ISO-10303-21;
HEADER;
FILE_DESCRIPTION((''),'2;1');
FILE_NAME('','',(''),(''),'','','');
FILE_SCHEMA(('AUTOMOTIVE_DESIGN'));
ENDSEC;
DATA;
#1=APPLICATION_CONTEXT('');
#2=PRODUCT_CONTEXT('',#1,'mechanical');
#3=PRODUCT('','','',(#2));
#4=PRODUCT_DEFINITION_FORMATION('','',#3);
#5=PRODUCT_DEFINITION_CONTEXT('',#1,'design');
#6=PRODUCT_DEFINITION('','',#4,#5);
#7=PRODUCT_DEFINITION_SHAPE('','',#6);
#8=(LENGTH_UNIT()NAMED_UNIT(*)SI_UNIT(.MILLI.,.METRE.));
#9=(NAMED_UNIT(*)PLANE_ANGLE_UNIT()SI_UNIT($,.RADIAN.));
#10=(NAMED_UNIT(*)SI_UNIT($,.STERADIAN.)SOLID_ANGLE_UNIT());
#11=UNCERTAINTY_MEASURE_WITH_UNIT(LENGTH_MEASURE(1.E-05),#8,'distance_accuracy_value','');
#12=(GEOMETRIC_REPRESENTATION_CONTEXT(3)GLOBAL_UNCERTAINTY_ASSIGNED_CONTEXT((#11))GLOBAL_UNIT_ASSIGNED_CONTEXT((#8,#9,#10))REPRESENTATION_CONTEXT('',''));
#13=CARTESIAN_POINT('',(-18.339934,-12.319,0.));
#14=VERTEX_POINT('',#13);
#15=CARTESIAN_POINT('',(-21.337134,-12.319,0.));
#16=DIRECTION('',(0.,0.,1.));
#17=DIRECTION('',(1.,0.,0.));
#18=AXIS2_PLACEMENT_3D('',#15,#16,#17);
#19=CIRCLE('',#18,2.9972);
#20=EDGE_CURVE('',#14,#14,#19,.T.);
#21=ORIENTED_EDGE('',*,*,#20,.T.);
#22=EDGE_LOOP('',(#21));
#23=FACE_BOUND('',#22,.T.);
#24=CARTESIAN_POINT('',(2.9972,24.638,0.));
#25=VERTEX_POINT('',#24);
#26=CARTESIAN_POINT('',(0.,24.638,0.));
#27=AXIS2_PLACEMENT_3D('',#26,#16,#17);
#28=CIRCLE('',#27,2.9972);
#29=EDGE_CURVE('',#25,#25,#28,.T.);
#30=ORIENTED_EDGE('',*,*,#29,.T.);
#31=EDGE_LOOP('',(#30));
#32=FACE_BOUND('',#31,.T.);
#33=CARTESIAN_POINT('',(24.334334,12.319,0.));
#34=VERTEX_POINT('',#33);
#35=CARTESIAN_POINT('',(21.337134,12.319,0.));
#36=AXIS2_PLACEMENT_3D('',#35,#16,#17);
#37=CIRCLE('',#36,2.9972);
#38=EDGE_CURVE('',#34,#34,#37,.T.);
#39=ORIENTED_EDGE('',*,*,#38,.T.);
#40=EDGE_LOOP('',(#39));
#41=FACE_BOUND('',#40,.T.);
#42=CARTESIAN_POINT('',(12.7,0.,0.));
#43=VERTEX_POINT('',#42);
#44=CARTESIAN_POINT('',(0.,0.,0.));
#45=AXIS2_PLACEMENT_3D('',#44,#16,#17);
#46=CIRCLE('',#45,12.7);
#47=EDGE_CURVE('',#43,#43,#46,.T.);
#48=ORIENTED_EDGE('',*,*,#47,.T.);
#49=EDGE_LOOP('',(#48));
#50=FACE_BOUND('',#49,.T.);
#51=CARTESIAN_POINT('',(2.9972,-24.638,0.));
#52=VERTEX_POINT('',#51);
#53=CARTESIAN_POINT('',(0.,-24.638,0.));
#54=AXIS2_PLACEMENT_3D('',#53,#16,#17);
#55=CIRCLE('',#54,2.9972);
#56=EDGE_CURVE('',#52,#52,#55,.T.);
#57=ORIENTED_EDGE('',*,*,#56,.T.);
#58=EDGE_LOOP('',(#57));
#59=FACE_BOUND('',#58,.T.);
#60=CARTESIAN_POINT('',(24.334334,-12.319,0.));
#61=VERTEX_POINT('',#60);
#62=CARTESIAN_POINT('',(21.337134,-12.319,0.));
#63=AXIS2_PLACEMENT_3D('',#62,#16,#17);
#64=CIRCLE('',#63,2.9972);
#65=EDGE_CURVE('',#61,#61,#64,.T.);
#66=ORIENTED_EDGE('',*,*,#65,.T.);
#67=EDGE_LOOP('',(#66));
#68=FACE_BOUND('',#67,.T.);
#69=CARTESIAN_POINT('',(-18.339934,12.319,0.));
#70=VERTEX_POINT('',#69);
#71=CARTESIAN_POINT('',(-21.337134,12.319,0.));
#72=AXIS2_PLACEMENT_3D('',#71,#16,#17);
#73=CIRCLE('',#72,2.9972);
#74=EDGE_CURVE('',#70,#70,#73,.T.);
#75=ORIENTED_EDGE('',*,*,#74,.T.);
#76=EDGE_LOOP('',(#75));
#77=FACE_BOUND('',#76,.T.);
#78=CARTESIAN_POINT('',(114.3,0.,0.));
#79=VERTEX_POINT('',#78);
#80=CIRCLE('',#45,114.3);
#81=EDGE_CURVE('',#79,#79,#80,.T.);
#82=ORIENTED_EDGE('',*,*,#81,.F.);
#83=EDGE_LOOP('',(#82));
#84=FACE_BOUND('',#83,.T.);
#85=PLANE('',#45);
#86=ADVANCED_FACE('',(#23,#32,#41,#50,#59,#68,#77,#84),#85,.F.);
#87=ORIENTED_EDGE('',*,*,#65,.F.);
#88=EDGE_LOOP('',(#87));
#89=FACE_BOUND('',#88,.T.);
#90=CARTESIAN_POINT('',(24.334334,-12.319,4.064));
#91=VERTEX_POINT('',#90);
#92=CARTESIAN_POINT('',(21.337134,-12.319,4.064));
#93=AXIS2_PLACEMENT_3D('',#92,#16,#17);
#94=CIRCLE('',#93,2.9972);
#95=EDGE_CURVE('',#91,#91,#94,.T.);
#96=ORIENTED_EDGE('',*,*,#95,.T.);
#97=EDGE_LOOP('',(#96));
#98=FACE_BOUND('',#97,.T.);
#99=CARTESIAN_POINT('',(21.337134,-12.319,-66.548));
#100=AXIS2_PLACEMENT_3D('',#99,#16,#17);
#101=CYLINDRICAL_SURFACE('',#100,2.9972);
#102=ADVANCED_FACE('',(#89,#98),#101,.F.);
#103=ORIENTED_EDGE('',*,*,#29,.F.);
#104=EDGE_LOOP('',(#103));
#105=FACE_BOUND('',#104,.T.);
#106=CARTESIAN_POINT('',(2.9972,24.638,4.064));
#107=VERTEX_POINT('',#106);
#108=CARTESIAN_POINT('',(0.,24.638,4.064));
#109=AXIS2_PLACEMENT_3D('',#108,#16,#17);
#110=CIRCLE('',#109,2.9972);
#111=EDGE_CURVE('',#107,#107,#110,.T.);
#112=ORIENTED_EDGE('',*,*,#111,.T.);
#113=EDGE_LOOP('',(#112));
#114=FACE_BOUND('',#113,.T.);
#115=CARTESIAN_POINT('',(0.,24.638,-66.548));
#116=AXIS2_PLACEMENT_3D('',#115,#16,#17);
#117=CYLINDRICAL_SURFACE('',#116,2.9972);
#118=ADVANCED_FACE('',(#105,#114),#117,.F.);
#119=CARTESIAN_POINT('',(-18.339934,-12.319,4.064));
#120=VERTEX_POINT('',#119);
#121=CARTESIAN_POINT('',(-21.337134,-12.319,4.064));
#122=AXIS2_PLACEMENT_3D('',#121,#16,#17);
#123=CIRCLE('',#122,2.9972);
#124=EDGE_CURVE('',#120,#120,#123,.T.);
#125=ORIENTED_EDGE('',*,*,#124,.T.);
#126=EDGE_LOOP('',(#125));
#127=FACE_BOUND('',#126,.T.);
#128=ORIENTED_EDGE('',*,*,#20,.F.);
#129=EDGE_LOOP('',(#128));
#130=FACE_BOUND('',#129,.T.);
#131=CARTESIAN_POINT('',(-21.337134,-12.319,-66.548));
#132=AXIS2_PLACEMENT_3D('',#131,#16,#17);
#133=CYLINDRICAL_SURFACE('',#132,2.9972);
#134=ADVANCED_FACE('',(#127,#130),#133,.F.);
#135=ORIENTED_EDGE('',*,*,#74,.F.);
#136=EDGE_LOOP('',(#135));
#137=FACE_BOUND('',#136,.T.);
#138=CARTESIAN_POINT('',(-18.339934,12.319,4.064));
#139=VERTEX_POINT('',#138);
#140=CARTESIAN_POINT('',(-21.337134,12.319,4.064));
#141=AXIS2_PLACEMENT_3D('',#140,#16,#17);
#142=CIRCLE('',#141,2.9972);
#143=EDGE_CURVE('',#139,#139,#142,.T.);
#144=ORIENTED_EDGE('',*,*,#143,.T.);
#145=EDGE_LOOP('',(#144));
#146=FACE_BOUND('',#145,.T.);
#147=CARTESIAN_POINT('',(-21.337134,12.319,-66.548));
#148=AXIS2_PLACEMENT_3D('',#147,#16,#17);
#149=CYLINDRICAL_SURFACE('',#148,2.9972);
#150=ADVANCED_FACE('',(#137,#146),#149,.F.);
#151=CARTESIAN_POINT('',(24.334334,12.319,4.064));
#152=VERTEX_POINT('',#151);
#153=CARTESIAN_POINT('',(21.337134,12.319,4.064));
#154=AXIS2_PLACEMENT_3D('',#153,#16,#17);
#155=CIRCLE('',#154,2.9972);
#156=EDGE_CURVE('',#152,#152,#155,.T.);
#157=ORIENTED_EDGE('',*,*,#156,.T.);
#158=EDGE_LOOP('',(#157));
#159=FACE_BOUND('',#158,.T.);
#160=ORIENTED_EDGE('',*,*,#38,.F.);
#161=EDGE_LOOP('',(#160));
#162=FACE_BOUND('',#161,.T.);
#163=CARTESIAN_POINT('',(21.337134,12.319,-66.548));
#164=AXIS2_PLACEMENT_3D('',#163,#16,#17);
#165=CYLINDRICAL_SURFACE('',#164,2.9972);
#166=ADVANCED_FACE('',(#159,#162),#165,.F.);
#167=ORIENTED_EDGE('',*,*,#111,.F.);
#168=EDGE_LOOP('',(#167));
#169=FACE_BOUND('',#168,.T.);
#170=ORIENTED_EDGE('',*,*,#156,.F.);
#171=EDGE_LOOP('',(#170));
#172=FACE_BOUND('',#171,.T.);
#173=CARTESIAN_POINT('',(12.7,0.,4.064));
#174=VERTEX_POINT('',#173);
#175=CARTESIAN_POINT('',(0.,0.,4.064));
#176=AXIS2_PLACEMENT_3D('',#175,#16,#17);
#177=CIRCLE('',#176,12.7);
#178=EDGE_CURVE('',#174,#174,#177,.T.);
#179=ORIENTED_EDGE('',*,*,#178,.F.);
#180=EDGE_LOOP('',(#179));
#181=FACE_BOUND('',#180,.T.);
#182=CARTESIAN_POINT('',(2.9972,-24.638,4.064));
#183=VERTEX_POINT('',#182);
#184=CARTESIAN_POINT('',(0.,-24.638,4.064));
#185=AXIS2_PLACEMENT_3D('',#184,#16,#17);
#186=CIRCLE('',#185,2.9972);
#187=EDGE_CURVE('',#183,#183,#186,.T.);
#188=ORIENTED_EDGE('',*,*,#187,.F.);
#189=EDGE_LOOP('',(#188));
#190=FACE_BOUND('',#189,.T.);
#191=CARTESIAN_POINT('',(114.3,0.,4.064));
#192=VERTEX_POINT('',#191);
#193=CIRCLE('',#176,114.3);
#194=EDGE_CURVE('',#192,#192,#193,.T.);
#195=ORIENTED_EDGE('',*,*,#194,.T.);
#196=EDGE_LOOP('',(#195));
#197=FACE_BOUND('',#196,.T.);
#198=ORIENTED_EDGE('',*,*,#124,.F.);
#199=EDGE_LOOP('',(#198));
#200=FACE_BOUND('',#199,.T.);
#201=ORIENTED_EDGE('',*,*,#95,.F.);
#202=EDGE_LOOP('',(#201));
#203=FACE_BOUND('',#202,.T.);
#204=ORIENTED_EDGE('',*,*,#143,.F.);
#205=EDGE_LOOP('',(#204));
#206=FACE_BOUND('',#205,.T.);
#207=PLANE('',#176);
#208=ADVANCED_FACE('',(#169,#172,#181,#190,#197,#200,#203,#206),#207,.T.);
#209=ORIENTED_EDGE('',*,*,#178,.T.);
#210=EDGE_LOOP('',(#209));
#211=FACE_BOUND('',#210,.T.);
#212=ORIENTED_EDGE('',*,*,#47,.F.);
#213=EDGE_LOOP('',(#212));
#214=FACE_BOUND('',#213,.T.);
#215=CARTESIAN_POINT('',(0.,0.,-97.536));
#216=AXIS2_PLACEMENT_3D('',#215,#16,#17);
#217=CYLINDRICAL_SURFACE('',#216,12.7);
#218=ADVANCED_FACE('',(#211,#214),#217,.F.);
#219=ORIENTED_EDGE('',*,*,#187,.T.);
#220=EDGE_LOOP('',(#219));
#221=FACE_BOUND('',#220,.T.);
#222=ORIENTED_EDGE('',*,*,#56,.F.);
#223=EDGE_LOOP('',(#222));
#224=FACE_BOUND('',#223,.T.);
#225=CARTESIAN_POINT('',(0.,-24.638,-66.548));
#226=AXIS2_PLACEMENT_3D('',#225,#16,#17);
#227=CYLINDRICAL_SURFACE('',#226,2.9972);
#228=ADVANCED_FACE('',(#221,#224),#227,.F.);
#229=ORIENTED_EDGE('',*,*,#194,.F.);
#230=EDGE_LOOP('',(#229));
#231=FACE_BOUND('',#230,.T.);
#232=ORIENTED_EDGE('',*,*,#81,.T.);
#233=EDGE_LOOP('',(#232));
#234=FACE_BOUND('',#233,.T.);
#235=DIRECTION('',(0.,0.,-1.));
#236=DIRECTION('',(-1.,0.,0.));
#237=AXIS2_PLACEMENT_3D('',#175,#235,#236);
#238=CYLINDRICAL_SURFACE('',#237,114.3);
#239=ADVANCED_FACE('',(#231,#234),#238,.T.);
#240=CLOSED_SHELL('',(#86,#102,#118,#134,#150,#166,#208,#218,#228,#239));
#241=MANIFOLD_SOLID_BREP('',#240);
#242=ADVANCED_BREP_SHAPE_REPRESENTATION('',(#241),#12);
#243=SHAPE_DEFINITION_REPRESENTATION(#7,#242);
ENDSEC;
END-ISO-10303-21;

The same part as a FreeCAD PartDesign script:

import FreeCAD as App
import Part
import Sketcher
Q = App.Units.Quantity

doc = App.newDocument("Part")
body = doc.addObject("PartDesign::Body", "Body")

# Sketch on XY plane
sketch1 = body.newObject("Sketcher::SketchObject", "Sketch")
sketch1.AttachmentSupport = (doc.getObject("XY_Plane"), [""])
sketch1.MapMode = "FlatFace"
sketch1.addGeometry(Part.Circle(App.Vector(0, 0, 0), App.Vector(0, 0, 1), 114.3), False)
sketch1.addConstraint([
    Sketcher.Constraint("Coincident", 0, 3, -1, 1),
    Sketcher.Constraint("Diameter", 0, Q("9 in")),
])
pad1 = body.newObject("PartDesign::Pad", "Pad")
pad1.Profile = sketch1
pad1.Length = Q("0.16 in")

# Sketch on XY plane
sketch2 = body.newObject("Sketcher::SketchObject", "Sketch001")
sketch2.AttachmentSupport = (doc.getObject("XY_Plane"), [""])
sketch2.MapMode = "FlatFace"
sketch2.AttachmentOffset = App.Placement(App.Vector(0, 0, 0.16 * 25.4), App.Rotation())
sketch2.addGeometry(Part.Circle(App.Vector(0, 0, 0), App.Vector(0, 0, 1), 12.7), False)
sketch2.addConstraint([
    Sketcher.Constraint("Coincident", 0, 3, -1, 1),
    Sketcher.Constraint("Diameter", 0, Q("1 in")),
])
pocket1 = body.newObject("PartDesign::Pocket", "Pocket")
pocket1.Profile = sketch2
pocket1.Type = "ThroughAll"
pocket1.Midplane = True

# Sketch on XY plane
sketch3 = body.newObject("Sketcher::SketchObject", "Sketch002")
sketch3.AttachmentSupport = (doc.getObject("XY_Plane"), [""])
sketch3.MapMode = "FlatFace"
sketch3.AttachmentOffset = App.Placement(App.Vector(0, 0, 0.16 * 25.4), App.Rotation())
sketch3.addGeometry([
    Part.Circle(App.Vector(0, -24.638, 0), App.Vector(0, 0, 1), 2.9972),  # 0
    Part.Circle(App.Vector(-21.337134, -12.319, 0), App.Vector(0, 0, 1), 2.9972),  # 1
    Part.Circle(App.Vector(-21.337134, 12.319, 0), App.Vector(0, 0, 1), 2.9972),  # 2
    Part.Circle(App.Vector(0, 24.638, 0), App.Vector(0, 0, 1), 2.9972),  # 3
    Part.Circle(App.Vector(21.337134, 12.319, 0), App.Vector(0, 0, 1), 2.9972),  # 4
    Part.Circle(App.Vector(21.337134, -12.319, 0), App.Vector(0, 0, 1), 2.9972),  # 5
], False)
sketch3.addConstraint([
    Sketcher.Constraint("Equal", 0, 1),
    Sketcher.Constraint("Equal", 1, 2),
    Sketcher.Constraint("Equal", 2, 3),
    Sketcher.Constraint("Equal", 3, 4),
    Sketcher.Constraint("Equal", 4, 5),
    Sketcher.Constraint("Symmetric", 0, 3, 3, 3, -1, 1),
    Sketcher.Constraint("Symmetric", 1, 3, 4, 3, -1, 1),
    Sketcher.Constraint("Symmetric", 2, 3, 5, 3, -1, 1),
    Sketcher.Constraint("Symmetric", 2, 3, 4, 3, -2),
    Sketcher.Constraint("PointOnObject", 0, 3, -2),
    Sketcher.Constraint("Diameter", 0, Q("0.236 in")),
    Sketcher.Constraint("DistanceY", 0, 3, -1, 1, Q("0.97 in")),
    Sketcher.Constraint("DistanceY", 1, 3, 2, 3, Q("0.97 in")),
    Sketcher.Constraint("DistanceX", 1, 3, -1, 1, 21.337134),
])
pocket2 = body.newObject("PartDesign::Pocket", "Pocket001")
pocket2.Profile = sketch3
pocket2.Length = Q("2.78 in")

doc.recompute()
